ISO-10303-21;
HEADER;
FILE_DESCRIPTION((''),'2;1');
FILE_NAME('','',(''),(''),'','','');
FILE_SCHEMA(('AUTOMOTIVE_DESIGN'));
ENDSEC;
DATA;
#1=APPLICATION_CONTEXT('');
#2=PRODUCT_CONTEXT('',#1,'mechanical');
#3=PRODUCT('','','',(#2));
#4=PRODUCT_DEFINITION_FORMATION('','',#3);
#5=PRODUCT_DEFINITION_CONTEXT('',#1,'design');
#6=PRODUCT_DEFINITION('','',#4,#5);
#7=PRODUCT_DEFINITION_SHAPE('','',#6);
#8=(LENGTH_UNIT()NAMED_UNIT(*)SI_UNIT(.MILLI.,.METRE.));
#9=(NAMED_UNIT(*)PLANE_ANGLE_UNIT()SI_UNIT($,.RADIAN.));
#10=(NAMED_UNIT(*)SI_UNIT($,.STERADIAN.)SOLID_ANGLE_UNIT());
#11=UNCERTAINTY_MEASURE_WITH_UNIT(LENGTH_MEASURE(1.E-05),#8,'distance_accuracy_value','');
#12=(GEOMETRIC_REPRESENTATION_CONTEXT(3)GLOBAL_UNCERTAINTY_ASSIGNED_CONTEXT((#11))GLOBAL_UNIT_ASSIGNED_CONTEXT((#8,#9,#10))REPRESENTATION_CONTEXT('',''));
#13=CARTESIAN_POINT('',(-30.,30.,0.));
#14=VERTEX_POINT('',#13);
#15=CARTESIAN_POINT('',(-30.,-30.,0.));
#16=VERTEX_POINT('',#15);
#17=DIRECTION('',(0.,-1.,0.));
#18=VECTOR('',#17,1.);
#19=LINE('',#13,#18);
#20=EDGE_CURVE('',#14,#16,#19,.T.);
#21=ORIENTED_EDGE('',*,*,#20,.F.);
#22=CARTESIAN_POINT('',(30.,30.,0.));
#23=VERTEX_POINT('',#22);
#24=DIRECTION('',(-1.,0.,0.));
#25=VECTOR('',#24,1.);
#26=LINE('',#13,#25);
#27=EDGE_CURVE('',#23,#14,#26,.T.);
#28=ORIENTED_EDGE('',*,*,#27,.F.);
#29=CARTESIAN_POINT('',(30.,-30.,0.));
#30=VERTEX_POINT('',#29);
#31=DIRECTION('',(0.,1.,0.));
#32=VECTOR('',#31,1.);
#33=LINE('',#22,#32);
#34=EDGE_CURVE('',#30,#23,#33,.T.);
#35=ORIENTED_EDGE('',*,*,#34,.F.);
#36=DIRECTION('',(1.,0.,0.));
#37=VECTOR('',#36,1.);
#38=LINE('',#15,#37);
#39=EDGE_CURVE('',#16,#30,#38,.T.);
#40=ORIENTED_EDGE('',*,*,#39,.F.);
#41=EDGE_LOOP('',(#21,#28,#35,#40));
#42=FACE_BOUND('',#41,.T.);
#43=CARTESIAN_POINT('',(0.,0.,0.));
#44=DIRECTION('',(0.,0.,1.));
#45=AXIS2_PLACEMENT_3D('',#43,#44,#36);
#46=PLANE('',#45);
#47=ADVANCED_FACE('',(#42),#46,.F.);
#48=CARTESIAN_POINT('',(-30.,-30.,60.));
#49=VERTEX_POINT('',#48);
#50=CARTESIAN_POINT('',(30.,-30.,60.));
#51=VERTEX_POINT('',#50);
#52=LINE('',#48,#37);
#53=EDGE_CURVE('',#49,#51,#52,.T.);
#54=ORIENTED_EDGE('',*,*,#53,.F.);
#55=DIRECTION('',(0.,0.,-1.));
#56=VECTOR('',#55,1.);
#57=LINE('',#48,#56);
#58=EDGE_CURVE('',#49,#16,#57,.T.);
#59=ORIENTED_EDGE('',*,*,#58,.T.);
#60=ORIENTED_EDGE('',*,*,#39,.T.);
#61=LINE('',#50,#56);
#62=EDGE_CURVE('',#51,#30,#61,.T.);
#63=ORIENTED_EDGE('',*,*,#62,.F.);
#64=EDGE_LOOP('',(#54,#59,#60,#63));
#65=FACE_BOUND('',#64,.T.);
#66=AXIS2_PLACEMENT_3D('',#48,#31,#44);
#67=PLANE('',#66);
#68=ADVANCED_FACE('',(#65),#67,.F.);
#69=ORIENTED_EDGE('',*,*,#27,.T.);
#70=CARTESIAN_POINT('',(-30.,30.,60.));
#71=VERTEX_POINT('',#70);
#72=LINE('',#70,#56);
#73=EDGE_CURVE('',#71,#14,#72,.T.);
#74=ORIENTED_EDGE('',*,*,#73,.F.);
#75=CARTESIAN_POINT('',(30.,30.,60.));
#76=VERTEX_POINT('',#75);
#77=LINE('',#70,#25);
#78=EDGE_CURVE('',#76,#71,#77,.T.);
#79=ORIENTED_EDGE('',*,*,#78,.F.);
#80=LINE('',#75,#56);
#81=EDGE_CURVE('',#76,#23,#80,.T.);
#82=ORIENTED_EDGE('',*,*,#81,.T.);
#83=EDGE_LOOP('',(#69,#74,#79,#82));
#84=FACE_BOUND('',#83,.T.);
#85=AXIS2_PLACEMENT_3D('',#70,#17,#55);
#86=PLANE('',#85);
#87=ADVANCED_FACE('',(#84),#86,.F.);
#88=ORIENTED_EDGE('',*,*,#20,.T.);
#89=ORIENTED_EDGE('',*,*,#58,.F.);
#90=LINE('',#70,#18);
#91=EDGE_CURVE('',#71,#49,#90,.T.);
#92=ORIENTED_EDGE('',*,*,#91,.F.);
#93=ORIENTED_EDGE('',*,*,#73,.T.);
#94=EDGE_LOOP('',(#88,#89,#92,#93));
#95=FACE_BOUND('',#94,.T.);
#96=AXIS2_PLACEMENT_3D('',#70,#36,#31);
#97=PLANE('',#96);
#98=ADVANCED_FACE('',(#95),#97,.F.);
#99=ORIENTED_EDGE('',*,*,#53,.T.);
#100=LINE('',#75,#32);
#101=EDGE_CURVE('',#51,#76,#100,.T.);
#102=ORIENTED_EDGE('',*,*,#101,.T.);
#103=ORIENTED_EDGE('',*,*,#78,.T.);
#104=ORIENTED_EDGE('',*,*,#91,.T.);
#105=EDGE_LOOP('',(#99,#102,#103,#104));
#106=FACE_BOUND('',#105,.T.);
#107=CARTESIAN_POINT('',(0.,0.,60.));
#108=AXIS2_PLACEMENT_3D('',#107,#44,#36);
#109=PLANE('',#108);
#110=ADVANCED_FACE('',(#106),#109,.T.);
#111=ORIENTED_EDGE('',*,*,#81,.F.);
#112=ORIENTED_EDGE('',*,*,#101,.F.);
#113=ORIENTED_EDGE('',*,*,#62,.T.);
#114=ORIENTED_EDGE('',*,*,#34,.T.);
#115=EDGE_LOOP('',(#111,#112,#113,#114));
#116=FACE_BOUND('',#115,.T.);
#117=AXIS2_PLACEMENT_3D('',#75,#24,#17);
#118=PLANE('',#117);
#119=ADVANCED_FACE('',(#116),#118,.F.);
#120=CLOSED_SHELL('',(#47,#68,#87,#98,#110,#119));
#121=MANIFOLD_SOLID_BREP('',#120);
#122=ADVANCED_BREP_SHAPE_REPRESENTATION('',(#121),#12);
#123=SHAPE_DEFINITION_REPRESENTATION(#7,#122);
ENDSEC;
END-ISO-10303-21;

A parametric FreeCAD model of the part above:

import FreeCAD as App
import Part
import Sketcher
Q = App.Units.Quantity

doc = App.newDocument("Part")
body = doc.addObject("PartDesign::Body", "Body")

sketch1 = body.newObject("Sketcher::SketchObject", "Sketch")
sketch1.AttachmentSupport = (doc.getObject("XY_Plane"), [""])
sketch1.MapMode = "FlatFace"
sketch1.addGeometry(Part.LineSegment(App.Vector(-30, 30, 0), App.Vector(-30, -30, 0)), False)
sketch1.addGeometry(Part.LineSegment(App.Vector(-30, -30, 0), App.Vector(30, -30, 0)), False)
sketch1.addGeometry(Part.LineSegment(App.Vector(30, -30, 0), App.Vector(30, 30, 0)), False)
sketch1.addGeometry(Part.LineSegment(App.Vector(30, 30, 0), App.Vector(-30, 30, 0)), False)
sketch1.addConstraint(Sketcher.Constraint("Coincident", 0, 2, 1, 1))
sketch1.addConstraint(Sketcher.Constraint("Coincident", 1, 2, 2, 1))
sketch1.addConstraint(Sketcher.Constraint("Coincident", 2, 2, 3, 1))
sketch1.addConstraint(Sketcher.Constraint("Coincident", 3, 2, 0, 1))
sketch1.addConstraint(Sketcher.Constraint("Vertical", 0))
sketch1.addConstraint(Sketcher.Constraint("Horizontal", 1))
sketch1.addConstraint(Sketcher.Constraint("Vertical", 2))
sketch1.addConstraint(Sketcher.Constraint("Horizontal", 3))
sketch1.addConstraint(Sketcher.Constraint("Symmetric", 0, 2, 2, 2, -1, 1))
sketch1.addConstraint(Sketcher.Constraint("Equal", 3, 0))
sketch1.addConstraint(Sketcher.Constraint("DistanceX", 1, 1, 1, 2, Q("60 mm")))
pad1 = body.newObject("PartDesign::Pad", "Pad")
pad1.Profile = sketch1
pad1.Length = 60

doc.recompute()
